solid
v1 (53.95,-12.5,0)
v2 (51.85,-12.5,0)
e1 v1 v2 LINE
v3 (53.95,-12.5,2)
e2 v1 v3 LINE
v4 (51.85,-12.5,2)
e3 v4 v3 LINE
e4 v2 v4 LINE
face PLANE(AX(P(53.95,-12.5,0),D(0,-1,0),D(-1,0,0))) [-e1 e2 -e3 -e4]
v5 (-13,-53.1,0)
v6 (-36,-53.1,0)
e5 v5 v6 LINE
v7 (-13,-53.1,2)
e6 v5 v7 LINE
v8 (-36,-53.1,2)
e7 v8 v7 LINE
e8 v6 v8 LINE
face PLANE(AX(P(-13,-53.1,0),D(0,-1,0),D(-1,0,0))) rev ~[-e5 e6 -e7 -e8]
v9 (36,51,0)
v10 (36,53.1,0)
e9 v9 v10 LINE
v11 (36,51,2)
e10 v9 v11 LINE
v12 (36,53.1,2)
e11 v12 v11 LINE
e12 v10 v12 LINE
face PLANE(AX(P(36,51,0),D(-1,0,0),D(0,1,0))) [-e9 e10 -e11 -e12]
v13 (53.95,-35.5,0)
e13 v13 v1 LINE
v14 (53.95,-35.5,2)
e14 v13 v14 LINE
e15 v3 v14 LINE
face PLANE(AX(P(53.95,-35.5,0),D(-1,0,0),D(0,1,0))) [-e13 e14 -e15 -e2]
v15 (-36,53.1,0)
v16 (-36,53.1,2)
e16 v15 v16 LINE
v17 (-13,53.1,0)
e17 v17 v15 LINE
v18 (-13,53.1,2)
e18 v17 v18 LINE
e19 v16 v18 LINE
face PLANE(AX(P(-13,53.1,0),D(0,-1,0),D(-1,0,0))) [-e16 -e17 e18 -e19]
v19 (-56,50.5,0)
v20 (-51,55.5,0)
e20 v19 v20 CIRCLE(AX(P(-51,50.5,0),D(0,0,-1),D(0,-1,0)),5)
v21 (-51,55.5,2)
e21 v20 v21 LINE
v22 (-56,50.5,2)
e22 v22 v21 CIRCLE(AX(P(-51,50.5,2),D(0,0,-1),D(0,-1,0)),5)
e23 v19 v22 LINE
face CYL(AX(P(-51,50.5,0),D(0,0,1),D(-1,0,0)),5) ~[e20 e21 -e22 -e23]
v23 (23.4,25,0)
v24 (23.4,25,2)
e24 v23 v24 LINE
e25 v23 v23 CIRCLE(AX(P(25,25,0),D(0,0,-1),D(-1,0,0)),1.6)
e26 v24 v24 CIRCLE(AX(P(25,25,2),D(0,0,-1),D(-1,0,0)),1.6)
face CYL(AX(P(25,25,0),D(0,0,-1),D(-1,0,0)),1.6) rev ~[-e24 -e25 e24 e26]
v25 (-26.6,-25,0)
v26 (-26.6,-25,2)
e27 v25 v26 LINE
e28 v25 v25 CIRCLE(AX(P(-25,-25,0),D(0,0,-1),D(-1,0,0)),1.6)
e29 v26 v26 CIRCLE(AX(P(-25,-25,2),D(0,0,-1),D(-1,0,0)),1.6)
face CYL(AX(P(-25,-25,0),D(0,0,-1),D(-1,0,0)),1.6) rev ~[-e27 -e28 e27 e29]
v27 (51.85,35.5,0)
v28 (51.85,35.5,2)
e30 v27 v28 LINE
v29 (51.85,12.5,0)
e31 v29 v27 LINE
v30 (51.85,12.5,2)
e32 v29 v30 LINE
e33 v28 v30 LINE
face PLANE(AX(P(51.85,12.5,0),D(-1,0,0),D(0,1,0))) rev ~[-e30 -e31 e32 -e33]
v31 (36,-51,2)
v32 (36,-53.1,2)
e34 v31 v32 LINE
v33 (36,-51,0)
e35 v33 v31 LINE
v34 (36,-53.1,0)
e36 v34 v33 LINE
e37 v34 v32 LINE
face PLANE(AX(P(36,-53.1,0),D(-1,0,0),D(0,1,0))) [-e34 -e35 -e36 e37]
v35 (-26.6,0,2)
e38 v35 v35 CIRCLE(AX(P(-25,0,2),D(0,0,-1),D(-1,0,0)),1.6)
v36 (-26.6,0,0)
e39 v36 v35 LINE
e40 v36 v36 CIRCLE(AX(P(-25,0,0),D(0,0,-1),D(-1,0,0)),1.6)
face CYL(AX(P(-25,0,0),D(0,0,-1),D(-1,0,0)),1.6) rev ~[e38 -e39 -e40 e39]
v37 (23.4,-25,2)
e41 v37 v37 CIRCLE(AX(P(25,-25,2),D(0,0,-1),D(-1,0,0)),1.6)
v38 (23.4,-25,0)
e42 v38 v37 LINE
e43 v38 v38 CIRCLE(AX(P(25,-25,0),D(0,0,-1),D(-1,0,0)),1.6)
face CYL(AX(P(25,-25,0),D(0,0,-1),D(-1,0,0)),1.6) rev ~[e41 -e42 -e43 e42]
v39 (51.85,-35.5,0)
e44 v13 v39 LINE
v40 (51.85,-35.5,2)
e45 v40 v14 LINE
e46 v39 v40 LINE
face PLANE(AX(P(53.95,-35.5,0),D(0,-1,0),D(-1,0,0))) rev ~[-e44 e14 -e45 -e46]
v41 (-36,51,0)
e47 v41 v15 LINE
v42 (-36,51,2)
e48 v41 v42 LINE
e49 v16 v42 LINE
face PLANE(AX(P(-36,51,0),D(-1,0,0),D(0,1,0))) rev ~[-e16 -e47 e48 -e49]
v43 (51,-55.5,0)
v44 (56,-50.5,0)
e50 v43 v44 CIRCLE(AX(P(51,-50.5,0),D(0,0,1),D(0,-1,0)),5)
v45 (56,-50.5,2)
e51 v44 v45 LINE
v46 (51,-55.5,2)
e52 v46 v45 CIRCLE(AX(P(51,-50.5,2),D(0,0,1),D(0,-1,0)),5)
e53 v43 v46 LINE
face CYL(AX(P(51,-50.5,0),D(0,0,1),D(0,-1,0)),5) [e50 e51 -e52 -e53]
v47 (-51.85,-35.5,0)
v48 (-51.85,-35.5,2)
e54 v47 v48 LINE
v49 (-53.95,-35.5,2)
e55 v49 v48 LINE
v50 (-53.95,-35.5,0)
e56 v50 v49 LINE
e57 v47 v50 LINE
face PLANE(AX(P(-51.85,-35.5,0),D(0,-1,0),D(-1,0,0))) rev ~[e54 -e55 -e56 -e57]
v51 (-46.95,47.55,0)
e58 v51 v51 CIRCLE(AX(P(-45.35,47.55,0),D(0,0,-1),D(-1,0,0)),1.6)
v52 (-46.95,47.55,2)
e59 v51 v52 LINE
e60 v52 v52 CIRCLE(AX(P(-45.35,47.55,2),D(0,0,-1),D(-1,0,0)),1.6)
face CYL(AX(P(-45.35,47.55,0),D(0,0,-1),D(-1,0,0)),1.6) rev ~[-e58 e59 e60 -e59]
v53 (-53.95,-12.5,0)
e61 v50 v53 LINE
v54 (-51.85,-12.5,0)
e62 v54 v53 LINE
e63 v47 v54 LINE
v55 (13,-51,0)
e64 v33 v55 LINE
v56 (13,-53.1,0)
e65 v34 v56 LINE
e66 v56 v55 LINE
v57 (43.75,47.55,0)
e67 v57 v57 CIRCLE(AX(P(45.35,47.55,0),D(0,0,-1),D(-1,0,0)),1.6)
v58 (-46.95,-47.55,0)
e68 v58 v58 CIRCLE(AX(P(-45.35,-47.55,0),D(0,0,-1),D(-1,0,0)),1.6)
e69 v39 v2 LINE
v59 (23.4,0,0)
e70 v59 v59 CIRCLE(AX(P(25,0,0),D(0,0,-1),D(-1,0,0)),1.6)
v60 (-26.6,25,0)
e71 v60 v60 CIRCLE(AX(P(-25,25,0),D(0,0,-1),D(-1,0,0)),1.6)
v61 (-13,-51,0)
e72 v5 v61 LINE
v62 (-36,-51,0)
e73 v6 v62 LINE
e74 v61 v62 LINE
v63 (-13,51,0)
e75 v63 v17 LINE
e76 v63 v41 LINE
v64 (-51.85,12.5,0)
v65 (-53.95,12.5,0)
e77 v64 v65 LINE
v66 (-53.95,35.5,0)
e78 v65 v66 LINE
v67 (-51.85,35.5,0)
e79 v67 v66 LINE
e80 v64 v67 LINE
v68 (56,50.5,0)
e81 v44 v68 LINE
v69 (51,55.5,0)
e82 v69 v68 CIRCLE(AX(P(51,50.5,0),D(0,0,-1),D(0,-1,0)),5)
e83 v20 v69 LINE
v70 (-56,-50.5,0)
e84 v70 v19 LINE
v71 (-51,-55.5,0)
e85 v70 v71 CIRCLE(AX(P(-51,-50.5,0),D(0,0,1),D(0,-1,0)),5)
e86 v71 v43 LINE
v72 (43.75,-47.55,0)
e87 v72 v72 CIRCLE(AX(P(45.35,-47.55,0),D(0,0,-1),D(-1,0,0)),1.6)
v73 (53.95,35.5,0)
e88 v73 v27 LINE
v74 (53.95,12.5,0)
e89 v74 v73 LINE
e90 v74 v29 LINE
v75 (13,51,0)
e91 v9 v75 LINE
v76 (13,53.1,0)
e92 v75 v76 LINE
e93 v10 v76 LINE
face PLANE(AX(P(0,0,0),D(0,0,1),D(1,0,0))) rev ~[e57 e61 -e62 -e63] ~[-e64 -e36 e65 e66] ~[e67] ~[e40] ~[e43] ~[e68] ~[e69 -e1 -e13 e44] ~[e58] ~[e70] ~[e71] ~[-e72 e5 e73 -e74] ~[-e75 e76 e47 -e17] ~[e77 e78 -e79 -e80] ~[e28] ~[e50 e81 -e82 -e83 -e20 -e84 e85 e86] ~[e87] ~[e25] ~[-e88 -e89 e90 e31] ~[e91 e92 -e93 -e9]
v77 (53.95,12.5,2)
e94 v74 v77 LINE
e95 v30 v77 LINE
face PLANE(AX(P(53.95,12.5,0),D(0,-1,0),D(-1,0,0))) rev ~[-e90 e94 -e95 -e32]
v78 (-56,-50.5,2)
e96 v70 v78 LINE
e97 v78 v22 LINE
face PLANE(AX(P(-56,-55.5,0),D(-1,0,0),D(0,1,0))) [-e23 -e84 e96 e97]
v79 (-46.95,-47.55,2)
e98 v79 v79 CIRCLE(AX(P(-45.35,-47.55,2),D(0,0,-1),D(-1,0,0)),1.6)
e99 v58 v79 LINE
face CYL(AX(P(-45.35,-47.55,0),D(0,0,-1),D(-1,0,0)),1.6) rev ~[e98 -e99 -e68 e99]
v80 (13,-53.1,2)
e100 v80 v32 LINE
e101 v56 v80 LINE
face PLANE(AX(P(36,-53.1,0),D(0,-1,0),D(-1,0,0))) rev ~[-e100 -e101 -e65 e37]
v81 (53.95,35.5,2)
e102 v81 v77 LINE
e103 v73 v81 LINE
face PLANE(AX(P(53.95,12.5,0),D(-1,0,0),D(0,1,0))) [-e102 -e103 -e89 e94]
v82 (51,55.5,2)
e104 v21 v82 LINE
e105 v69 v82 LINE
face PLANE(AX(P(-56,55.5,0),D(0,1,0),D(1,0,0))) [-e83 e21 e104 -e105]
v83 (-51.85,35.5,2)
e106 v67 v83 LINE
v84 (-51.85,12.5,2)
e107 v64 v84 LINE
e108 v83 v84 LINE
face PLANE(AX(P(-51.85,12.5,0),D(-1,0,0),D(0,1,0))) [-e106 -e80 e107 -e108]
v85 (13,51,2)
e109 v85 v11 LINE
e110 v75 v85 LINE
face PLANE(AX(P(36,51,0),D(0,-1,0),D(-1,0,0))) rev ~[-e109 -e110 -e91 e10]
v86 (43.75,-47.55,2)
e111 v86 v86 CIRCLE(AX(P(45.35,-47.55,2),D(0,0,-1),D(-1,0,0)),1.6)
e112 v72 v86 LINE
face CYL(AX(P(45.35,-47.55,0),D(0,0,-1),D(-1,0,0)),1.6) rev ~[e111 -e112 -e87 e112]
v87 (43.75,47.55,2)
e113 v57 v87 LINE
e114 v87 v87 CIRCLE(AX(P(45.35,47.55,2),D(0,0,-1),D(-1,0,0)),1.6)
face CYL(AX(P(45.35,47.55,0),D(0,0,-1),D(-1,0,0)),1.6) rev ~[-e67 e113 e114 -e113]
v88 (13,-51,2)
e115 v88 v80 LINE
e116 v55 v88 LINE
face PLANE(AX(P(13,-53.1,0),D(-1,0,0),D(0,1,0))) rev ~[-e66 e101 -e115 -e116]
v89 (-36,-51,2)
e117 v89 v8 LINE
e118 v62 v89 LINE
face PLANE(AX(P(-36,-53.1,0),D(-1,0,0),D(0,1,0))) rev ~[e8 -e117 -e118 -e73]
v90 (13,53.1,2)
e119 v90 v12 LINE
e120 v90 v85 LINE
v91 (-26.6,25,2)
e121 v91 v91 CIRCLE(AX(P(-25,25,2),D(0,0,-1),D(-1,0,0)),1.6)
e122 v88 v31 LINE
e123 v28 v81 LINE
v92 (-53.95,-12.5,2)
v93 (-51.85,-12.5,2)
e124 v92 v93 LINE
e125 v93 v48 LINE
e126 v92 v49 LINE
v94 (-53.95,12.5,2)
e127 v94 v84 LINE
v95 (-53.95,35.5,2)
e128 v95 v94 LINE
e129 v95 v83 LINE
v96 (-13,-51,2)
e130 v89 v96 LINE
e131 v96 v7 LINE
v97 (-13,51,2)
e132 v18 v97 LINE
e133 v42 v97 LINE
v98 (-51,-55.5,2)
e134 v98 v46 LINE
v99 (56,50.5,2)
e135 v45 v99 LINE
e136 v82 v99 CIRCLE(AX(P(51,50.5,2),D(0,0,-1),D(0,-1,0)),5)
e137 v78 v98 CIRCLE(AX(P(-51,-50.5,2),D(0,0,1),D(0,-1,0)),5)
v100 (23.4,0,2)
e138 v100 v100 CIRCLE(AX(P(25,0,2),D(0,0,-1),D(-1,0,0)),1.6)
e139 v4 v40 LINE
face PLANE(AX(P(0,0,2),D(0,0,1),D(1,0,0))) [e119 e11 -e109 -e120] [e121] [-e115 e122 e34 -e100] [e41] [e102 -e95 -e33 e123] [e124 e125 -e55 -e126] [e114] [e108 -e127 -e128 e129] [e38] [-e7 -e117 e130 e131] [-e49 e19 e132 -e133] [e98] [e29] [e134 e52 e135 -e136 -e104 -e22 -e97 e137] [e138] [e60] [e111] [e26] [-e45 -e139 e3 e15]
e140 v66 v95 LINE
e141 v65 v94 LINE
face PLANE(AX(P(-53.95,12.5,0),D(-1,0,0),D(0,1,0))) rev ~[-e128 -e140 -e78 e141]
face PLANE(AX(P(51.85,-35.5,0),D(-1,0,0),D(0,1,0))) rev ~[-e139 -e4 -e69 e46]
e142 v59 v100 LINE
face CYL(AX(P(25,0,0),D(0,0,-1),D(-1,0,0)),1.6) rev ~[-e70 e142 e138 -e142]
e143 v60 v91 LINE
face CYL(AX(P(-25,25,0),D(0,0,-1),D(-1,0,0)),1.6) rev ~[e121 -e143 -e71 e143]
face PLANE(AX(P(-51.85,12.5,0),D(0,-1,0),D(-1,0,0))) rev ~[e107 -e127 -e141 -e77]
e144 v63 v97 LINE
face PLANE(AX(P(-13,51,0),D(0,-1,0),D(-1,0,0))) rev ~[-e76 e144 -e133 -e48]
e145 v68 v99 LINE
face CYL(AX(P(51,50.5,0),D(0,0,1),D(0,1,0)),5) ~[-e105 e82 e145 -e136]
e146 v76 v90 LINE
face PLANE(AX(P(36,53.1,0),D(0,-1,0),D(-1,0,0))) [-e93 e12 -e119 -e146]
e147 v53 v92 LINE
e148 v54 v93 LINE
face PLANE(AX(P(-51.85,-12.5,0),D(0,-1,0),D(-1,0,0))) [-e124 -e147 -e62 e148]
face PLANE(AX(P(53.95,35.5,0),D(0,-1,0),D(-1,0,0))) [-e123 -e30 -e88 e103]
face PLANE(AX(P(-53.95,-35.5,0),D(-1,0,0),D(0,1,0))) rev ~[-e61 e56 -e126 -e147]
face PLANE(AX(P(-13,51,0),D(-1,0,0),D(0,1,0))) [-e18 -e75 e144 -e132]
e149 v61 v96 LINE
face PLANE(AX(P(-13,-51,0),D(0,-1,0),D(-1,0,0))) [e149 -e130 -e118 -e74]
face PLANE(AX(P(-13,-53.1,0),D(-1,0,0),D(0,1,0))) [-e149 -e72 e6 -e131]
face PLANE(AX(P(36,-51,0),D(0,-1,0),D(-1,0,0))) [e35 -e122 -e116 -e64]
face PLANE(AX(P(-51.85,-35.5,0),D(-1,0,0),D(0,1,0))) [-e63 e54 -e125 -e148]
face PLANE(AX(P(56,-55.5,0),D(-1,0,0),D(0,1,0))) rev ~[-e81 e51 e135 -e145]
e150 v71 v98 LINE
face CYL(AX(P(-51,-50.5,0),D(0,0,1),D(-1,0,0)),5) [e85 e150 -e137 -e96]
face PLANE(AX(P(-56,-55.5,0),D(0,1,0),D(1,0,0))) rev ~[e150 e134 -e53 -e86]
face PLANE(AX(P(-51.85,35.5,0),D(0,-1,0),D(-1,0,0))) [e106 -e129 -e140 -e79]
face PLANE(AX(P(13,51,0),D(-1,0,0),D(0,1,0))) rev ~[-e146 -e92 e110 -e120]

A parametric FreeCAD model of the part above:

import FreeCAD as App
import Part
import Sketcher
from FreeCAD import Vector


def edges_at(feature, points):
    """Names of the edges that pass closest to the given points."""
    edges = feature.Shape.Edges
    near = lambda p: min(range(len(edges)), key=lambda i: edges[i].distToShape(Part.Vertex(*p))[0])
    return sorted({f"Edge{near(p) + 1}" for p in points})

doc = App.newDocument("Part")
params = doc.addObject("Spreadsheet::Sheet", "Params")
for row, (alias, value) in enumerate([
    ("sketch1_width", "112 mm"),
    ("sketch1_height", "111 mm"),
    ("pad1_length", "2 mm"),
    ("sketch2_diameter", "3.2 mm"),
    ("sketch3_width", "23 mm"),
    ("sketch3_width2", "2.1 mm"),
    ("sketch4_diameter", "3.2 mm"),
    ("fillet_radius", "5 mm"),
], start=1):
    params.set(f"A{row}", alias)
    params.set(f"B{row}", "=" + value)
    params.setAlias(f"B{row}", alias)

body = doc.addObject("PartDesign::Body", "Body")

# Sketch on XY plane
sketch1 = body.newObject("Sketcher::SketchObject", "Sketch")
sketch1.AttachmentSupport = (doc.getObject("XY_Plane"), [""])
sketch1.MapMode = "FlatFace"
sketch1.addGeometry([
    Part.LineSegment(Vector(-56, 56, 0), Vector(-56, -56, 0)),
    Part.LineSegment(Vector(-56, -56, 0), Vector(56, -56, 0)),
    Part.LineSegment(Vector(56, -56, 0), Vector(56, 56, 0)),
    Part.LineSegment(Vector(56, 56, 0), Vector(-56, 56, 0)),
], False)
sketch1.addConstraint([
    Sketcher.Constraint("Coincident", 0, 2, 1, 1),
    Sketcher.Constraint("Coincident", 1, 2, 2, 1),
    Sketcher.Constraint("Coincident", 2, 2, 3, 1),
    Sketcher.Constraint("Coincident", 3, 2, 0, 1),
    Sketcher.Constraint("Vertical", 0),
    Sketcher.Constraint("Horizontal", 1),
    Sketcher.Constraint("Vertical", 2),
    Sketcher.Constraint("Horizontal", 3),
    Sketcher.Constraint("Symmetric", 0, 2, 2, 2, -1, 1),
    Sketcher.Constraint("DistanceX", 1, 1, 1, 2, 112.0),
    Sketcher.Constraint("DistanceY", 0, 2, 0, 1, 111.0),
])
sketch1.setExpression("Constraints[9]", "Params.sketch1_width")
sketch1.setExpression("Constraints[10]", "Params.sketch1_height")
pad1 = body.newObject("PartDesign::Pad", "Pad")
pad1.Profile = sketch1
pad1.setExpression("Length", "Params.pad1_length")

# Sketch on XY plane
sketch2 = body.newObject("Sketcher::SketchObject", "Sketch001")
sketch2.AttachmentSupport = (doc.getObject("XY_Plane"), [""])
sketch2.MapMode = "FlatFace"
sketch2.addGeometry([
    Part.Circle(Vector(45.4, -47.5, 0), Vector(0, 0, 1), 1.6),
    Part.Circle(Vector(-45.4, -47.5, 0), Vector(0, 0, 1), 1.6),
    Part.Circle(Vector(-45.4, 47.5, 0), Vector(0, 0, 1), 1.6),
    Part.Circle(Vector(45.4, 47.5, 0), Vector(0, 0, 1), 1.6),
], False)
sketch2.addConstraint([
    Sketcher.Constraint("Equal", 0, 1),
    Sketcher.Constraint("Equal", 1, 2),
    Sketcher.Constraint("Equal", 2, 3),
    Sketcher.Constraint("Symmetric", 0, 3, 2, 3, -1, 1),
    Sketcher.Constraint("Symmetric", 1, 3, 3, 3, -1, 1),
    Sketcher.Constraint("Symmetric", 0, 3, 1, 3, -2),
    Sketcher.Constraint("Diameter", 0, 3.2),
    Sketcher.Constraint("DistanceX", 1, 3, 0, 3, 90.7),
    Sketcher.Constraint("DistanceY", 1, 3, 2, 3, 95.1),
])
sketch2.setExpression("Constraints[6]", "Params.sketch2_diameter")
pocket1 = body.newObject("PartDesign::Pocket", "Pocket")
pocket1.Profile = sketch2
pocket1.Type = "ThroughAll"
pocket1.Reversed = True

# Sketch on XY plane
sketch3 = body.newObject("Sketcher::SketchObject", "Sketch002")
sketch3.AttachmentSupport = (doc.getObject("XY_Plane"), [""])
sketch3.MapMode = "FlatFace"
sketch3.addGeometry([
    Part.LineSegment(Vector(54, 35.5, 0), Vector(54, 12.5, 0)),  # 0
    Part.LineSegment(Vector(54, 12.5, 0), Vector(51.9, 12.5, 0)),  # 1
    Part.LineSegment(Vector(51.9, 12.5, 0), Vector(51.9, 35.5, 0)),  # 2
    Part.LineSegment(Vector(51.9, 35.5, 0), Vector(54, 35.5, 0)),  # 3
    Part.LineSegment(Vector(54, -12.5, 0), Vector(54, -35.5, 0)),  # 4
    Part.LineSegment(Vector(54, -35.5, 0), Vector(51.9, -35.5, 0)),  # 5
    Part.LineSegment(Vector(51.9, -35.5, 0), Vector(51.9, -12.5, 0)),  # 6
    Part.LineSegment(Vector(51.9, -12.5, 0), Vector(54, -12.5, 0)),  # 7
    Part.LineSegment(Vector(-51.9, -12.5, 0), Vector(-51.9, -35.5, 0)),  # 8
    Part.LineSegment(Vector(-51.9, -35.5, 0), Vector(-54, -35.5, 0)),  # 9
    Part.LineSegment(Vector(-54, -35.5, 0), Vector(-54, -12.5, 0)),  # 10
    Part.LineSegment(Vector(-54, -12.5, 0), Vector(-51.9, -12.5, 0)),  # 11
    Part.LineSegment(Vector(-51.9, 35.5, 0), Vector(-51.9, 12.5, 0)),  # 12
    Part.LineSegment(Vector(-51.9, 12.5, 0), Vector(-54, 12.5, 0)),  # 13
    Part.LineSegment(Vector(-54, 12.5, 0), Vector(-54, 35.5, 0)),  # 14
    Part.LineSegment(Vector(-54, 35.5, 0), Vector(-51.9, 35.5, 0)),  # 15
    Part.LineSegment(Vector(36, -51, 0), Vector(36, -53.1, 0)),  # 16
    Part.LineSegment(Vector(36, -53.1, 0), Vector(13, -53.1, 0)),  # 17
    Part.LineSegment(Vector(13, -53.1, 0), Vector(13, -51, 0)),  # 18
    Part.LineSegment(Vector(13, -51, 0), Vector(36, -51, 0)),  # 19
    Part.LineSegment(Vector(-13, -51, 0), Vector(-13, -53.1, 0)),  # 20
    Part.LineSegment(Vector(-13, -53.1, 0), Vector(-36, -53.1, 0)),  # 21
    Part.LineSegment(Vector(-36, -53.1, 0), Vector(-36, -51, 0)),  # 22
    Part.LineSegment(Vector(-36, -51, 0), Vector(-13, -51, 0)),  # 23
    Part.LineSegment(Vector(-13, 53.1, 0), Vector(-13, 51, 0)),  # 24
    Part.LineSegment(Vector(-13, 51, 0), Vector(-36, 51, 0)),  # 25
    Part.LineSegment(Vector(-36, 51, 0), Vector(-36, 53.1, 0)),  # 26
    Part.LineSegment(Vector(-36, 53.1, 0), Vector(-13, 53.1, 0)),  # 27
    Part.LineSegment(Vector(36, 53.1, 0), Vector(36, 51, 0)),  # 28
    Part.LineSegment(Vector(36, 51, 0), Vector(13, 51, 0)),  # 29
    Part.LineSegment(Vector(13, 51, 0), Vector(13, 53.1, 0)),  # 30
    Part.LineSegment(Vector(13, 53.1, 0), Vector(36, 53.1, 0)),  # 31
], False)
sketch3.addConstraint([
    Sketcher.Constraint("Coincident", 0, 2, 1, 1),
    Sketcher.Constraint("Coincident", 1, 2, 2, 1),
    Sketcher.Constraint("Coincident", 2, 2, 3, 1),
    Sketcher.Constraint("Coincident", 3, 2, 0, 1),
    Sketcher.Constraint("Coincident", 4, 2, 5, 1),
    Sketcher.Constraint("Coincident", 5, 2, 6, 1),
    Sketcher.Constraint("Coincident", 6, 2, 7, 1),
    Sketcher.Constraint("Coincident", 7, 2, 4, 1),
    Sketcher.Constraint("Coincident", 8, 2, 9, 1),
    Sketcher.Constraint("Coincident", 9, 2, 10, 1),
    Sketcher.Constraint("Coincident", 10, 2, 11, 1),
    Sketcher.Constraint("Coincident", 11, 2, 8, 1),
    Sketcher.Constraint("Coincident", 12, 2, 13, 1),
    Sketcher.Constraint("Coincident", 13, 2, 14, 1),
    Sketcher.Constraint("Coincident", 14, 2, 15, 1),
    Sketcher.Constraint("Coincident", 15, 2, 12, 1),
    Sketcher.Constraint("Coincident", 16, 2, 17, 1),
    Sketcher.Constraint("Coincident", 17, 2, 18, 1),
    Sketcher.Constraint("Coincident", 18, 2, 19, 1),
    Sketcher.Constraint("Coincident", 19, 2, 16, 1),
    Sketcher.Constraint("Coincident", 20, 2, 21, 1),
    Sketcher.Constraint("Coincident", 21, 2, 22, 1),
    Sketcher.Constraint("Coincident", 22, 2, 23, 1),
    Sketcher.Constraint("Coincident", 23, 2, 20, 1),
    Sketcher.Constraint("Coincident", 24, 2, 25, 1),
    Sketcher.Constraint("Coincident", 25, 2, 26, 1),
    Sketcher.Constraint("Coincident", 26, 2, 27, 1),
    Sketcher.Constraint("Coincident", 27, 2, 24, 1),
    Sketcher.Constraint("Coincident", 28, 2, 29, 1),
    Sketcher.Constraint("Coincident", 29, 2, 30, 1),
    Sketcher.Constraint("Coincident", 30, 2, 31, 1),
    Sketcher.Constraint("Coincident", 31, 2, 28, 1),
    Sketcher.Constraint("Vertical", 0),
    Sketcher.Constraint("Horizontal", 1),
    Sketcher.Constraint("Vertical", 2),
    Sketcher.Constraint("Horizontal", 3),
    Sketcher.Constraint("Vertical", 4),
    Sketcher.Constraint("Horizontal", 5),
    Sketcher.Constraint("Vertical", 6),
    Sketcher.Constraint("Horizontal", 7),
    Sketcher.Constraint("Vertical", 8),
    Sketcher.Constraint("Horizontal", 9),
    Sketcher.Constraint("Vertical", 10),
    Sketcher.Constraint("Horizontal", 11),
    Sketcher.Constraint("Vertical", 12),
    Sketcher.Constraint("Horizontal", 13),
    Sketcher.Constraint("Vertical", 14),
    Sketcher.Constraint("Horizontal", 15),
    Sketcher.Constraint("Vertical", 16),
    Sketcher.Constraint("Horizontal", 17),
    Sketcher.Constraint("Vertical", 18),
    Sketcher.Constraint("Horizontal", 19),
    Sketcher.Constraint("Vertical", 20),
    Sketcher.Constraint("Horizontal", 21),
    Sketcher.Constraint("Vertical", 22),
    Sketcher.Constraint("Horizontal", 23),
    Sketcher.Constraint("Vertical", 24),
    Sketcher.Constraint("Horizontal", 25),
    Sketcher.Constraint("Vertical", 26),
    Sketcher.Constraint("Horizontal", 27),
    Sketcher.Constraint("Vertical", 28),
    Sketcher.Constraint("Horizontal", 29),
    Sketcher.Constraint("Vertical", 30),
    Sketcher.Constraint("Horizontal", 31),
    Sketcher.Constraint("Symmetric", 2, 2, 8, 2, -1, 1),
    Sketcher.Constraint("Symmetric", 0, 2, 10, 2, -1, 1),
    Sketcher.Constraint("Symmetric", 6, 2, 12, 2, -1, 1),
    Sketcher.Constraint("Symmetric", 4, 2, 14, 2, -1, 1),
    Sketcher.Constraint("Symmetric", 18, 2, 24, 2, -1, 1),
    Sketcher.Constraint("Symmetric", 16, 2, 26, 2, -1, 1),
    Sketcher.Constraint("Symmetric", 22, 2, 28, 2, -1, 1),
    Sketcher.Constraint("Symmetric", 20, 2, 30, 2, -1, 1),
    Sketcher.Constraint("Symmetric", 5, 2, 8, 2, -2),
    Sketcher.Constraint("Symmetric", 7, 2, 10, 2, -2),
    Sketcher.Constraint("Symmetric", 17, 2, 20, 2, -2),
    Sketcher.Constraint("Symmetric", 19, 2, 22, 2, -2),
    Sketcher.Constraint("Equal", 31, 0),
    Sketcher.Constraint("Equal", 15, 16),
    Sketcher.Constraint("DistanceX", 17, 2, 17, 1, 23.0),
    Sketcher.Constraint("DistanceX", 1, 2, 1, 1, 2.1),
    Sketcher.Constraint("DistanceX", -1, 1, 16, 2, 36.0),
    Sketcher.Constraint("DistanceY", 18, 2, -1, 1, 51.0),
    Sketcher.Constraint("DistanceY", 4, 2, 0, 2, 48.0),
    Sketcher.Constraint("DistanceX", 8, 2, 5, 2, 103.7),
])
sketch3.setExpression("Constraints[78]", "Params.sketch3_width")
sketch3.setExpression("Constraints[79]", "Params.sketch3_width2")
pocket2 = body.newObject("PartDesign::Pocket", "Pocket001")
pocket2.Profile = sketch3
pocket2.Type = "ThroughAll"
pocket2.Reversed = True

# Sketch on XY plane
sketch4 = body.newObject("Sketcher::SketchObject", "Sketch003")
sketch4.AttachmentSupport = (doc.getObject("XY_Plane"), [""])
sketch4.MapMode = "FlatFace"
sketch4.addGeometry([
    Part.Circle(Vector(25, -25, 0), Vector(0, 0, 1), 1.6),  # 0
    Part.Circle(Vector(-25, -25, 0), Vector(0, 0, 1), 1.6),  # 1
    Part.Circle(Vector(-25, 0, 0), Vector(0, 0, 1), 1.6),  # 2
    Part.Circle(Vector(-25, 25, 0), Vector(0, 0, 1), 1.6),  # 3
    Part.Circle(Vector(25, 0, 0), Vector(0, 0, 1), 1.6),  # 4
    Part.Circle(Vector(25, 25, 0), Vector(0, 0, 1), 1.6),  # 5
], False)
sketch4.addConstraint([
    Sketcher.Constraint("Equal", 0, 1),
    Sketcher.Constraint("Equal", 1, 2),
    Sketcher.Constraint("Equal", 2, 3),
    Sketcher.Constraint("Equal", 3, 4),
    Sketcher.Constraint("Equal", 4, 5),
    Sketcher.Constraint("Symmetric", 0, 3, 3, 3, -1, 1),
    Sketcher.Constraint("Symmetric", 2, 3, 4, 3, -1, 1),
    Sketcher.Constraint("Symmetric", 1, 3, 5, 3, -1, 1),
    Sketcher.Constraint("Symmetric", 0, 3, 1, 3, -2),
    Sketcher.Constraint("PointOnObject", 2, 3, -1),
    Sketcher.Constraint("Vertical", 1, 3, 2, 3),
    Sketcher.Constraint("Diameter", 0, 3.2),
    Sketcher.Constraint("DistanceX", -1, 1, 0, 3, 25.0),
    Sketcher.Constraint("DistanceY", 0, 3, -1, 1, 25.0),
])
sketch4.setExpression("Constraints[11]", "Params.sketch4_diameter")
pocket3 = body.newObject("PartDesign::Pocket", "Pocket002")
pocket3.Profile = sketch4
pocket3.Type = "ThroughAll"
pocket3.Reversed = True
doc.recompute()

fillet = body.newObject("PartDesign::Fillet", "Fillet")
fillet.Base = (pocket3, edges_at(pocket3, [
    (56, -55.5, 1),
    (-56, -55.5, 1),
    (-56, 55.5, 1),
    (56, 55.5, 1),
]))
fillet.setExpression("Radius", "Params.fillet_radius")

doc.recompute()
